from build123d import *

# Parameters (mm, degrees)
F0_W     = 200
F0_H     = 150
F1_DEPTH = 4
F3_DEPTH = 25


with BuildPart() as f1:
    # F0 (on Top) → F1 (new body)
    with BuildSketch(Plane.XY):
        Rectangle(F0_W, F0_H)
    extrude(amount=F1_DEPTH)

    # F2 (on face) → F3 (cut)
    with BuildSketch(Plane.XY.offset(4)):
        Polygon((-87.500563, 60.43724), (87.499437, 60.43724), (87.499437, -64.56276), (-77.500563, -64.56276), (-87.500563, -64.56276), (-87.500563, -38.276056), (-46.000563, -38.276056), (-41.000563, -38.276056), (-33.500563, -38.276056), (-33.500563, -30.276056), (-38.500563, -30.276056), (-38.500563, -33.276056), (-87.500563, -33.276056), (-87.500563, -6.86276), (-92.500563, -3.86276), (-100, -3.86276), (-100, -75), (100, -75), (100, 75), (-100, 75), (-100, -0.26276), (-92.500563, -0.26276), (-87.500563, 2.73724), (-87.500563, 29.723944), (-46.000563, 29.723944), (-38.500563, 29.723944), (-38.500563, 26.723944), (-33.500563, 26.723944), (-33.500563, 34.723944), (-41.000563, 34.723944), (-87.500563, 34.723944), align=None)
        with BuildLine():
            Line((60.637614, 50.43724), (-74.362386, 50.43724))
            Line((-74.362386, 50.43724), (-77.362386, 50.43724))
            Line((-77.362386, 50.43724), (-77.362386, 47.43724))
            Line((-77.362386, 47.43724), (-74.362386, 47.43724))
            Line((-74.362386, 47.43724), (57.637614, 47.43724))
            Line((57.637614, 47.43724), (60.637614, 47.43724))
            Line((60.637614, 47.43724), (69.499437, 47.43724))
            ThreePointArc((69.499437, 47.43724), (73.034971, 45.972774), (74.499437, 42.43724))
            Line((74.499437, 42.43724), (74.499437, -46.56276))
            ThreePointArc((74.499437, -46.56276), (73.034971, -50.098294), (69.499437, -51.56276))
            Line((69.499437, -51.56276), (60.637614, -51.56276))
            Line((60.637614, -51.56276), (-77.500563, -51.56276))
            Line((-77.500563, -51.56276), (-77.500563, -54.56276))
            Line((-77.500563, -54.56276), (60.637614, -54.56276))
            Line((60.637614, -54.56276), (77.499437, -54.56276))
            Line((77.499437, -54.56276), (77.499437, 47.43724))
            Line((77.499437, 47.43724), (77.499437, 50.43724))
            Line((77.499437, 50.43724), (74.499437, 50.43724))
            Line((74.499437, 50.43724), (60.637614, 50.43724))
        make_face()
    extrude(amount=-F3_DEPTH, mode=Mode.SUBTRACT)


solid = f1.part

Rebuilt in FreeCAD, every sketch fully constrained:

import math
import FreeCAD as App
import Part
import Sketcher
from FreeCAD import Vector

doc = App.newDocument("Part")
body = doc.addObject("PartDesign::Body", "Body")

# Sketch on XY plane
sketch1 = body.newObject("Sketcher::SketchObject", "Sketch")
sketch1.AttachmentSupport = (doc.getObject("XY_Plane"), [""])
sketch1.MapMode = "FlatFace"
sketch1.addGeometry([
    Part.LineSegment(Vector(-100, 75, 0), Vector(-100, -75, 0)),
    Part.LineSegment(Vector(-100, -75, 0), Vector(100, -75, 0)),
    Part.LineSegment(Vector(100, -75, 0), Vector(100, 75, 0)),
    Part.LineSegment(Vector(100, 75, 0), Vector(-100, 75, 0)),
], False)
sketch1.addConstraint([
    Sketcher.Constraint("Coincident", 0, 2, 1, 1),
    Sketcher.Constraint("Coincident", 1, 2, 2, 1),
    Sketcher.Constraint("Coincident", 2, 2, 3, 1),
    Sketcher.Constraint("Coincident", 3, 2, 0, 1),
    Sketcher.Constraint("Vertical", 0),
    Sketcher.Constraint("Horizontal", 1),
    Sketcher.Constraint("Vertical", 2),
    Sketcher.Constraint("Horizontal", 3),
    Sketcher.Constraint("Symmetric", 0, 2, 2, 2, -1, 1),
    Sketcher.Constraint("DistanceX", 1, 1, 1, 2, 200.0),
    Sketcher.Constraint("DistanceY", 0, 2, 0, 1, 150.0),
])
pad1 = body.newObject("PartDesign::Pad", "Pad")
pad1.Profile = sketch1
pad1.Length = 4

# Sketch on XY plane
sketch2 = body.newObject("Sketcher::SketchObject", "Sketch001")
sketch2.AttachmentSupport = (doc.getObject("XY_Plane"), [""])
sketch2.MapMode = "FlatFace"
sketch2.AttachmentOffset = App.Placement(Vector(0, 0, 4), App.Rotation())
sketch2.addGeometry([
    Part.LineSegment(Vector(-87.500563, 60.43724, 0), Vector(87.499437, 60.43724, 0)),  # 0
    Part.LineSegment(Vector(87.499437, 60.43724, 0), Vector(87.499437, -64.56276, 0)),  # 1
    Part.LineSegment(Vector(87.499437, -64.56276, 0), Vector(-87.500563, -64.56276, 0)),  # 2
    Part.LineSegment(Vector(-87.500563, -64.56276, 0), Vector(-87.500563, -38.276056, 0)),  # 3
    Part.LineSegment(Vector(-87.500563, -38.276056, 0), Vector(-33.500563, -38.276056, 0)),  # 4
    Part.LineSegment(Vector(-33.500563, -38.276056, 0), Vector(-33.500563, -30.276056, 0)),  # 5
    Part.LineSegment(Vector(-33.500563, -30.276056, 0), Vector(-38.500563, -30.276056, 0)),  # 6
    Part.LineSegment(Vector(-38.500563, -30.276056, 0), Vector(-38.500563, -33.276056, 0)),  # 7
    Part.LineSegment(Vector(-38.500563, -33.276056, 0), Vector(-87.500563, -33.276056, 0)),  # 8
    Part.LineSegment(Vector(-87.500563, -33.276056, 0), Vector(-87.500563, -6.86276, 0)),  # 9
    Part.LineSegment(Vector(-87.500563, -6.86276, 0), Vector(-92.500563, -3.86276, 0)),  # 10
    Part.LineSegment(Vector(-92.500563, -3.86276, 0), Vector(-100, -3.86276, 0)),  # 11
    Part.LineSegment(Vector(-100, -3.86276, 0), Vector(-100, -75, 0)),  # 12
    Part.LineSegment(Vector(-100, -75, 0), Vector(100, -75, 0)),  # 13
    Part.LineSegment(Vector(100, -75, 0), Vector(100, 75, 0)),  # 14
    Part.LineSegment(Vector(100, 75, 0), Vector(-100, 75, 0)),  # 15
    Part.LineSegment(Vector(-100, 75, 0), Vector(-100, -0.26276, 0)),  # 16
    Part.LineSegment(Vector(-100, -0.26276, 0), Vector(-92.500563, -0.26276, 0)),  # 17
    Part.LineSegment(Vector(-92.500563, -0.26276, 0), Vector(-87.500563, 2.73724, 0)),  # 18
    Part.LineSegment(Vector(-87.500563, 2.73724, 0), Vector(-87.500563, 29.723944, 0)),  # 19
    Part.LineSegment(Vector(-87.500563, 29.723944, 0), Vector(-38.500563, 29.723944, 0)),  # 20
    Part.LineSegment(Vector(-38.500563, 29.723944, 0), Vector(-38.500563, 26.723944, 0)),  # 21
    Part.LineSegment(Vector(-38.500563, 26.723944, 0), Vector(-33.500563, 26.723944, 0)),  # 22
    Part.LineSegment(Vector(-33.500563, 26.723944, 0), Vector(-33.500563, 34.723944, 0)),  # 23
    Part.LineSegment(Vector(-33.500563, 34.723944, 0), Vector(-87.500563, 34.723944, 0)),  # 24
    Part.LineSegment(Vector(-87.500563, 34.723944, 0), Vector(-87.500563, 60.43724, 0)),  # 25
    Part.LineSegment(Vector(-77.362386, 50.43724, 0), Vector(-77.362386, 47.43724, 0)),  # 26
    Part.LineSegment(Vector(-77.362386, 47.43724, 0), Vector(69.499437, 47.43724, 0)),  # 27
    Part.ArcOfCircle(Part.Circle(Vector(69.499437, 42.43724, 0), Vector(0, 0, 1), 5), math.radians(-0.000004), math.radians(90.000004)),  # 28
    Part.LineSegment(Vector(74.499437, 42.43724, 0), Vector(74.499437, -46.56276, 0)),  # 29
    Part.ArcOfCircle(Part.Circle(Vector(69.499437, -46.56276, 0), Vector(0, 0, 1), 5), math.radians(-90.000004), math.radians(0.000004)),  # 30
    Part.LineSegment(Vector(69.499437, -51.56276, 0), Vector(-77.500563, -51.56276, 0)),  # 31
    Part.LineSegment(Vector(-77.500563, -51.56276, 0), Vector(-77.500563, -54.56276, 0)),  # 32
    Part.LineSegment(Vector(-77.500563, -54.56276, 0), Vector(77.499437, -54.56276, 0)),  # 33
    Part.LineSegment(Vector(77.499437, -54.56276, 0), Vector(77.499437, 50.43724, 0)),  # 34
    Part.LineSegment(Vector(77.499437, 50.43724, 0), Vector(-77.362386, 50.43724, 0)),  # 35
], False)
sketch2.addConstraint([
    Sketcher.Constraint("Coincident", 0, 2, 1, 1),
    Sketcher.Constraint("Coincident", 1, 2, 2, 1),
    Sketcher.Constraint("Coincident", 2, 2, 3, 1),
    Sketcher.Constraint("Coincident", 3, 2, 4, 1),
    Sketcher.Constraint("Coincident", 4, 2, 5, 1),
    Sketcher.Constraint("Coincident", 5, 2, 6, 1),
    Sketcher.Constraint("Coincident", 6, 2, 7, 1),
    Sketcher.Constraint("Coincident", 7, 2, 8, 1),
    Sketcher.Constraint("Coincident", 8, 2, 9, 1),
    Sketcher.Constraint("Coincident", 9, 2, 10, 1),
    Sketcher.Constraint("Coincident", 10, 2, 11, 1),
    Sketcher.Constraint("Coincident", 11, 2, 12, 1),
    Sketcher.Constraint("Coincident", 12, 2, 13, 1),
    Sketcher.Constraint("Coincident", 13, 2, 14, 1),
    Sketcher.Constraint("Coincident", 14, 2, 15, 1),
    Sketcher.Constraint("Coincident", 15, 2, 16, 1),
    Sketcher.Constraint("Coincident", 16, 2, 17, 1),
    Sketcher.Constraint("Coincident", 17, 2, 18, 1),
    Sketcher.Constraint("Coincident", 18, 2, 19, 1),
    Sketcher.Constraint("Coincident", 19, 2, 20, 1),
    Sketcher.Constraint("Coincident", 20, 2, 21, 1),
    Sketcher.Constraint("Coincident", 21, 2, 22, 1),
    Sketcher.Constraint("Coincident", 22, 2, 23, 1),
    Sketcher.Constraint("Coincident", 23, 2, 24, 1),
    Sketcher.Constraint("Coincident", 24, 2, 25, 1),
    Sketcher.Constraint("Coincident", 25, 2, 0, 1),
    Sketcher.Constraint("Coincident", 26, 2, 27, 1),
    Sketcher.Constraint("Tangent", 27, 2, 28, 2),
    Sketcher.Constraint("Tangent", 28, 1, 29, 1),
    Sketcher.Constraint("Tangent", 29, 2, 30, 2),
    Sketcher.Constraint("Tangent", 30, 1, 31, 1),
    Sketcher.Constraint("Coincident", 31, 2, 32, 1),
    Sketcher.Constraint("Coincident", 32, 2, 33, 1),
    Sketcher.Constraint("Coincident", 33, 2, 34, 1),
    Sketcher.Constraint("Coincident", 34, 2, 35, 1),
    Sketcher.Constraint("Coincident", 35, 2, 26, 1),
    Sketcher.Constraint("Horizontal", 0),
    Sketcher.Constraint("Vertical", 1),
    Sketcher.Constraint("Horizontal", 2),
    Sketcher.Constraint("Vertical", 3),
    Sketcher.Constraint("Horizontal", 4),
    Sketcher.Constraint("Vertical", 5),
    Sketcher.Constraint("Horizontal", 6),
    Sketcher.Constraint("Vertical", 7),
    Sketcher.Constraint("Horizontal", 8),
    Sketcher.Constraint("Vertical", 9),
    Sketcher.Constraint("Horizontal", 11),
    Sketcher.Constraint("Vertical", 12),
    Sketcher.Constraint("Horizontal", 13),
    Sketcher.Constraint("Vertical", 14),
    Sketcher.Constraint("Horizontal", 15),
    Sketcher.Constraint("Vertical", 16),
    Sketcher.Constraint("Horizontal", 17),
    Sketcher.Constraint("Vertical", 19),
    Sketcher.Constraint("Horizontal", 20),
    Sketcher.Constraint("Vertical", 21),
    Sketcher.Constraint("Horizontal", 22),
    Sketcher.Constraint("Vertical", 23),
    Sketcher.Constraint("Horizontal", 24),
    Sketcher.Constraint("Vertical", 25),
    Sketcher.Constraint("Vertical", 26),
    Sketcher.Constraint("Horizontal", 27),
    Sketcher.Constraint("Vertical", 29),
    Sketcher.Constraint("Horizontal", 31),
    Sketcher.Constraint("Vertical", 32),
    Sketcher.Constraint("Horizontal", 33),
    Sketcher.Constraint("Vertical", 34),
    Sketcher.Constraint("Horizontal", 35),
    Sketcher.Constraint("Equal", 28, 30),
    Sketcher.Constraint("Symmetric", 12, 2, 14, 2, -1, 1),
    Sketcher.Constraint("Vertical", 3, 2, 8, 2),
    Sketcher.Constraint("Vertical", 12, 2, 15, 2),
    Sketcher.Constraint("Vertical", 10, 2, 17, 2),
    Sketcher.Constraint("Vertical", 9, 2, 18, 2),
    Sketcher.Constraint("Vertical", 7, 2, 20, 2),
    Sketcher.Constraint("Vertical", 5, 2, 22, 2),
    Sketcher.Constraint("Vertical", 19, 2, 24, 2),
    Sketcher.Constraint("Equal", 7, 21),
    Sketcher.Constraint("Equal", 5, 23),
    Sketcher.Constraint("Equal", 21, 26),
    Sketcher.Constraint("Equal", 26, 32),
    Sketcher.Constraint("Equal", 10, 18),
    Sketcher.Constraint("Radius", 28, 5.0),
    Sketcher.Constraint("DistanceX", 0, 1, 0, 2, 175.0),
    Sketcher.Constraint("DistanceX", 4, 1, 4, 2, 54.0),
    Sketcher.Constraint("DistanceX", 6, 2, 6, 1, 5.0),
    Sketcher.Constraint("DistanceX", 13, 1, 13, 2, 200.0),
    Sketcher.Constraint("DistanceX", 31, 2, 31, 1, 147.0),
    Sketcher.Constraint("DistanceX", 33, 1, 33, 2, 155.0),
    Sketcher.Constraint("DistanceY", 1, 2, 1, 1, 125.0),
    Sketcher.Constraint("DistanceY", 5, 1, 5, 2, 8.0),
    Sketcher.Constraint("DistanceY", 7, 2, 7, 1, 3.0),
    Sketcher.Constraint("DistanceY", 14, 1, 14, 2, 150.0),
    Sketcher.Constraint("DistanceY", 29, 2, 29, 1, 89.0),
    Sketcher.Constraint("DistanceX", 28, 3, 0, 2, 18.0),
    Sketcher.Constraint("DistanceY", 28, 3, 0, 2, 18.0),
    Sketcher.Constraint("DistanceX", 10, 2, 9, 2, 5.0),
    Sketcher.Constraint("DistanceY", 9, 2, 10, 2, 3.0),
    Sketcher.Constraint("DistanceY", 6, 2, 20, 2, 60.0),
    Sketcher.Constraint("DistanceY", 2, 2, 9, 2, 57.7),
    Sketcher.Constraint("DistanceY", 11, 2, 16, 2, 3.6),
    Sketcher.Constraint("DistanceY", 12, 2, 12, 1, 71.13724),
    Sketcher.Constraint("DistanceX", 11, 2, 11, 1, 7.499437),
    Sketcher.Constraint("DistanceX", 27, 1, 27, 2, 146.861823),
    Sketcher.Constraint("DistanceY", 3, 1, 3, 2, 26.286704),
])
pocket1 = body.newObject("PartDesign::Pocket", "Pocket")
pocket1.Profile = sketch2
pocket1.Length = 25

doc.recompute()
